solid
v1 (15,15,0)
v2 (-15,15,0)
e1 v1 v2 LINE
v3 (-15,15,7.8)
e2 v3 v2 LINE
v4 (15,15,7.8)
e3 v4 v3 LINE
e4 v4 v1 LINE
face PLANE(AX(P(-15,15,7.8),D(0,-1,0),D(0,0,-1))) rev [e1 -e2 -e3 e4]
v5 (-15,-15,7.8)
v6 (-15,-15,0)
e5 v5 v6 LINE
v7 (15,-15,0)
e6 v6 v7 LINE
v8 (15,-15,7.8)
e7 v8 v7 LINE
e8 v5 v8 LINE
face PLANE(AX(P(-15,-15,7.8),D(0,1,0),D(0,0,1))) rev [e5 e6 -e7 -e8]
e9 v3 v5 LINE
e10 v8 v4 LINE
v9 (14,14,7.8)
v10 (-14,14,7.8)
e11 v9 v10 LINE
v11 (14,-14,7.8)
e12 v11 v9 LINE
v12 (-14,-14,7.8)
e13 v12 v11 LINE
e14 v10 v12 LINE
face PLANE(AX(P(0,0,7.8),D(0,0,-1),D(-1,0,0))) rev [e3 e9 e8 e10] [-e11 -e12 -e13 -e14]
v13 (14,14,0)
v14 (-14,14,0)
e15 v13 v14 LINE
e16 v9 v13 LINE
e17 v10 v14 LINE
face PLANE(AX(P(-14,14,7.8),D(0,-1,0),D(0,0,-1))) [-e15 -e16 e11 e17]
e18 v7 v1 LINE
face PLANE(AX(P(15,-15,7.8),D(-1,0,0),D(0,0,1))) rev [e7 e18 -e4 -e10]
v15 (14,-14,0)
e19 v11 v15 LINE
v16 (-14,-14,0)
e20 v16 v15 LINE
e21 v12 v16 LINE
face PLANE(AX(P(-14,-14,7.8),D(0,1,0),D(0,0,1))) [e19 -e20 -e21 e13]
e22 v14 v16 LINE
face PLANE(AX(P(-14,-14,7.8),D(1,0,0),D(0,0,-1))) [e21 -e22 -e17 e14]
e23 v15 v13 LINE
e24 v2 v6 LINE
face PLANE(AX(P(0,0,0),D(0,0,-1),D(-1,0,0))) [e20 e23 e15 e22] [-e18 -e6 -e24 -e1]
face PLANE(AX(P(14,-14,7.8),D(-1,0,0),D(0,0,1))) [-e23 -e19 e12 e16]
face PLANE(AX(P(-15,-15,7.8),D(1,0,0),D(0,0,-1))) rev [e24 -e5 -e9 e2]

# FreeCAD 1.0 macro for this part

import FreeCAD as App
import Part
import Sketcher

V = App.Vector

doc = App.newDocument("Part")
params = doc.addObject("Spreadsheet::Sheet", "Params")
for row, (alias, value) in enumerate([
    ("sketch1_width", "30 mm"),
    ("sketch1_width2", "28 mm"),
    ("pad1_length", "7.8 mm"),
], start=1):
    params.set(f"A{row}", alias)
    params.set(f"B{row}", "=" + value)
    params.setAlias(f"B{row}", alias)

body = doc.addObject("PartDesign::Body", "Body")

# Sketch on XY plane
sketch1 = doc.addObject("Sketcher::SketchObject", "Sketch")
body.addObject(sketch1)
sketch1.AttachmentSupport = (doc.XY_Plane, [""])
sketch1.MapMode = "FlatFace"
sketch1.addGeometry([
    Part.LineSegment(V(-15, 15, 0), V(-15, -15, 0)),  # 0
    Part.LineSegment(V(-15, -15, 0), V(15, -15, 0)),  # 1
    Part.LineSegment(V(15, -15, 0), V(15, 15, 0)),  # 2
    Part.LineSegment(V(15, 15, 0), V(-15, 15, 0)),  # 3
    Part.LineSegment(V(14, -14, 0), V(-14, -14, 0)),  # 4
    Part.LineSegment(V(-14, -14, 0), V(-14, 14, 0)),  # 5
    Part.LineSegment(V(-14, 14, 0), V(14, 14, 0)),  # 6
    Part.LineSegment(V(14, 14, 0), V(14, -14, 0)),  # 7
], False)
sketch1.addConstraint([
    Sketcher.Constraint("Coincident", 0, 2, 1, 1),
    Sketcher.Constraint("Coincident", 1, 2, 2, 1),
    Sketcher.Constraint("Coincident", 2, 2, 3, 1),
    Sketcher.Constraint("Coincident", 3, 2, 0, 1),
    Sketcher.Constraint("Coincident", 4, 2, 5, 1),
    Sketcher.Constraint("Coincident", 5, 2, 6, 1),
    Sketcher.Constraint("Coincident", 6, 2, 7, 1),
    Sketcher.Constraint("Coincident", 7, 2, 4, 1),
    Sketcher.Constraint("Vertical", 0),
    Sketcher.Constraint("Horizontal", 1),
    Sketcher.Constraint("Vertical", 2),
    Sketcher.Constraint("Horizontal", 3),
    Sketcher.Constraint("Horizontal", 4),
    Sketcher.Constraint("Vertical", 5),
    Sketcher.Constraint("Horizontal", 6),
    Sketcher.Constraint("Vertical", 7),
    Sketcher.Constraint("Symmetric", 0, 2, 2, 2, -1, 1),
    Sketcher.Constraint("Symmetric", 4, 2, 6, 2, -1, 1),
    Sketcher.Constraint("Equal", 3, 0),
    Sketcher.Constraint("Equal", 6, 5),
    Sketcher.Constraint("DistanceX", 1, 1, 1, 2, 30.0),
    Sketcher.Constraint("DistanceX", 4, 2, 4, 1, 28.0),
])
sketch1.setExpression("Constraints[20]", "Params.sketch1_width")
sketch1.setExpression("Constraints[21]", "Params.sketch1_width2")
pad1 = doc.addObject("PartDesign::Pad", "Pad")
body.addObject(pad1)
pad1.Profile = sketch1
pad1.setExpression("Length", "Params.pad1_length")

doc.recompute()
